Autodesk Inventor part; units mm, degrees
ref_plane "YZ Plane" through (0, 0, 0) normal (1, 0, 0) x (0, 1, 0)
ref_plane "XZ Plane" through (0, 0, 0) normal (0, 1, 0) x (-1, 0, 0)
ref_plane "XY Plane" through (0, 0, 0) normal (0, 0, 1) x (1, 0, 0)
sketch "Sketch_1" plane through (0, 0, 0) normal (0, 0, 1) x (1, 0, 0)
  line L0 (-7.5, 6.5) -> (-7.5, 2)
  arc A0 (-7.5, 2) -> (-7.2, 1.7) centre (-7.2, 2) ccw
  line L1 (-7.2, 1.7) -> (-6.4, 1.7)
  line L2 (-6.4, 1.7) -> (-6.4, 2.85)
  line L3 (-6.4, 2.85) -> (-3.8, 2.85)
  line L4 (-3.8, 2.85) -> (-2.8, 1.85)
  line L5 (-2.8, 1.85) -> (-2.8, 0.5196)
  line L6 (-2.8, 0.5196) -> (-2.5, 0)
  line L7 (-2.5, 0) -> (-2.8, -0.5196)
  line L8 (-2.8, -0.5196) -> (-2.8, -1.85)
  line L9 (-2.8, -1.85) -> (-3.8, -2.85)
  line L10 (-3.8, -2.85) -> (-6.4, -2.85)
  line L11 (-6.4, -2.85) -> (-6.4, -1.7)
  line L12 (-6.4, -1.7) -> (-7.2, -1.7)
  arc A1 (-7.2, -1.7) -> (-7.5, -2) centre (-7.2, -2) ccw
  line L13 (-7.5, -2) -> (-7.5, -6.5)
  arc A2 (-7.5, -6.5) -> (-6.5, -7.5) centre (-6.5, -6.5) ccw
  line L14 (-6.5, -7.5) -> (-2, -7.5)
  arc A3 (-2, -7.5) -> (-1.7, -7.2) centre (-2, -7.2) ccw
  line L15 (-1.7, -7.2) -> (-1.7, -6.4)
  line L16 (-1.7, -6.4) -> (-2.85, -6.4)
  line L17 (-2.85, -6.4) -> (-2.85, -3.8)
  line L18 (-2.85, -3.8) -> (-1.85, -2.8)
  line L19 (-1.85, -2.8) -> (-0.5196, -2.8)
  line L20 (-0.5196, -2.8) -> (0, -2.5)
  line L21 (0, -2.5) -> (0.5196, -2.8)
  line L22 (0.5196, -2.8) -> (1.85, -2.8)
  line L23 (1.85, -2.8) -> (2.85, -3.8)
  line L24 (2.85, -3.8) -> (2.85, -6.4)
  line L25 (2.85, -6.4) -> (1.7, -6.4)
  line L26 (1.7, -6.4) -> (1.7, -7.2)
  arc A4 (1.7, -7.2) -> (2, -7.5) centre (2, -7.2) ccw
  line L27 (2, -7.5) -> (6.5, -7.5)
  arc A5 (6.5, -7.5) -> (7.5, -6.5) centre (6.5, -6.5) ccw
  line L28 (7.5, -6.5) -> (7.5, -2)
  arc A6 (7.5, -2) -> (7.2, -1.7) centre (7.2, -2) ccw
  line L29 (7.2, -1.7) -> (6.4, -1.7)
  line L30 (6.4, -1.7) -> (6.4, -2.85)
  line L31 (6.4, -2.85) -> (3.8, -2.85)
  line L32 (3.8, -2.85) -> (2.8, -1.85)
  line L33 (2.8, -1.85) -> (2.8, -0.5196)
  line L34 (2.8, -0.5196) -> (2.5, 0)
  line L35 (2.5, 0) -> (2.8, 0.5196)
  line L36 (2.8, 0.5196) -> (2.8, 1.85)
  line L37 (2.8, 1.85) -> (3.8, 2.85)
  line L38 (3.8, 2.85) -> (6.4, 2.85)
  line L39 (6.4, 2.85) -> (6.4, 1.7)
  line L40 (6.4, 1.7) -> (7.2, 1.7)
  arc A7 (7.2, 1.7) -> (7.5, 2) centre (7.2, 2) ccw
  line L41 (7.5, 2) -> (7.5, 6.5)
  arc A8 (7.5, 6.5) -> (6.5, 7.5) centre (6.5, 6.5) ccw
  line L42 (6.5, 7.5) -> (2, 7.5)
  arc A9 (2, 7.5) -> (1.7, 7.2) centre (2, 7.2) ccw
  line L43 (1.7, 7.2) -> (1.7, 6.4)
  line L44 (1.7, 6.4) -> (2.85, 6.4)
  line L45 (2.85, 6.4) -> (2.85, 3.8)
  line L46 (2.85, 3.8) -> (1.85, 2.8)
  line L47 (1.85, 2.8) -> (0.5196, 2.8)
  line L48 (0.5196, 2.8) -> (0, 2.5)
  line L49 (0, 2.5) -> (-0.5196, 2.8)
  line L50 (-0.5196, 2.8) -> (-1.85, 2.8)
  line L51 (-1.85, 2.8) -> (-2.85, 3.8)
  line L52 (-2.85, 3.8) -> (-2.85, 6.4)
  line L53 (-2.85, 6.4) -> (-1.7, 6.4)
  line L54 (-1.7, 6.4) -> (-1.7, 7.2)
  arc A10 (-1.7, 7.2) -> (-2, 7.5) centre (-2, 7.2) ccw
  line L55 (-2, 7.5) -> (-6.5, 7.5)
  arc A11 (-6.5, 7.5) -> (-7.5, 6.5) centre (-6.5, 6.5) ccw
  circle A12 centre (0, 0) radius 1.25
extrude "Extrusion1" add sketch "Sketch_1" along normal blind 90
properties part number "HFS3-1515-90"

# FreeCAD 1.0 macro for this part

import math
import FreeCAD as App
import Part
import Sketcher

V = App.Vector
Q = App.Units.Quantity

doc = App.newDocument("Part")
body = doc.addObject("PartDesign::Body", "Body")

# Sketch on XY plane
sketch1 = body.newObject("Sketcher::SketchObject", "Sketch")
sketch1.AttachmentSupport = (doc.getObject("XY_Plane"), [""])
sketch1.MapMode = "FlatFace"
sketch1.addGeometry([
    Part.ArcOfCircle(Part.Circle(V(-6.5, 6.5, 0), V(0, 0, 1), 1), math.radians(90), math.radians(180)),  # 0
    Part.LineSegment(V(-7.5, 6.5, 0), V(-7.5, 2, 0)),  # 1
    Part.ArcOfCircle(Part.Circle(V(-7.2, 2, 0), V(0, 0, 1), 0.3), math.radians(180), math.radians(270)),  # 2
    Part.LineSegment(V(-7.2, 1.7, 0), V(-6.4, 1.7, 0)),  # 3
    Part.LineSegment(V(-6.4, 1.7, 0), V(-6.4, 2.85, 0)),  # 4
    Part.LineSegment(V(-6.4, 2.85, 0), V(-3.8, 2.85, 0)),  # 5
    Part.LineSegment(V(-3.8, 2.85, 0), V(-2.8, 1.85, 0)),  # 6
    Part.LineSegment(V(-2.8, 1.85, 0), V(-2.8, 0.52, 0)),  # 7
    Part.LineSegment(V(-2.8, 0.52, 0), V(-2.5, 0, 0)),  # 8
    Part.LineSegment(V(-2.5, 0, 0), V(-2.8, -0.52, 0)),  # 9
    Part.LineSegment(V(-2.8, -0.52, 0), V(-2.8, -1.85, 0)),  # 10
    Part.LineSegment(V(-2.8, -1.85, 0), V(-3.8, -2.85, 0)),  # 11
    Part.LineSegment(V(-3.8, -2.85, 0), V(-6.4, -2.85, 0)),  # 12
    Part.LineSegment(V(-6.4, -2.85, 0), V(-6.4, -1.7, 0)),  # 13
    Part.LineSegment(V(-6.4, -1.7, 0), V(-7.2, -1.7, 0)),  # 14
    Part.ArcOfCircle(Part.Circle(V(-7.2, -2, 0), V(0, 0, 1), 0.3), math.radians(90), math.radians(180)),  # 15
    Part.LineSegment(V(-7.5, -2, 0), V(-7.5, -6.5, 0)),  # 16
    Part.ArcOfCircle(Part.Circle(V(-6.5, -6.5, 0), V(0, 0, 1), 1), math.radians(180), math.radians(270)),  # 17
    Part.LineSegment(V(-6.5, -7.5, 0), V(-2, -7.5, 0)),  # 18
    Part.ArcOfCircle(Part.Circle(V(-2, -7.2, 0), V(0, 0, 1), 0.3), math.radians(-90), math.radians(0)),  # 19
    Part.LineSegment(V(-1.7, -7.2, 0), V(-1.7, -6.4, 0)),  # 20
    Part.LineSegment(V(-1.7, -6.4, 0), V(-2.85, -6.4, 0)),  # 21
    Part.LineSegment(V(-2.85, -6.4, 0), V(-2.85, -3.8, 0)),  # 22
    Part.LineSegment(V(-2.85, -3.8, 0), V(-1.85, -2.8, 0)),  # 23
    Part.LineSegment(V(-1.85, -2.8, 0), V(-0.52, -2.8, 0)),  # 24
    Part.LineSegment(V(-0.52, -2.8, 0), V(0, -2.5, 0)),  # 25
    Part.LineSegment(V(0, -2.5, 0), V(0.52, -2.8, 0)),  # 26
    Part.LineSegment(V(0.52, -2.8, 0), V(1.85, -2.8, 0)),  # 27
    Part.LineSegment(V(1.85, -2.8, 0), V(2.85, -3.8, 0)),  # 28
    Part.LineSegment(V(2.85, -3.8, 0), V(2.85, -6.4, 0)),  # 29
    Part.LineSegment(V(2.85, -6.4, 0), V(1.7, -6.4, 0)),  # 30
    Part.LineSegment(V(1.7, -6.4, 0), V(1.7, -7.2, 0)),  # 31
    Part.ArcOfCircle(Part.Circle(V(2, -7.2, 0), V(0, 0, 1), 0.3), math.radians(180), math.radians(270)),  # 32
    Part.LineSegment(V(2, -7.5, 0), V(6.5, -7.5, 0)),  # 33
    Part.ArcOfCircle(Part.Circle(V(6.5, -6.5, 0), V(0, 0, 1), 1), math.radians(-90), math.radians(0)),  # 34
    Part.LineSegment(V(7.5, -6.5, 0), V(7.5, -2, 0)),  # 35
    Part.ArcOfCircle(Part.Circle(V(7.2, -2, 0), V(0, 0, 1), 0.3), math.radians(0), math.radians(90)),  # 36
    Part.LineSegment(V(7.2, -1.7, 0), V(6.4, -1.7, 0)),  # 37
    Part.LineSegment(V(6.4, -1.7, 0), V(6.4, -2.85, 0)),  # 38
    Part.LineSegment(V(6.4, -2.85, 0), V(3.8, -2.85, 0)),  # 39
    Part.LineSegment(V(3.8, -2.85, 0), V(2.8, -1.85, 0)),  # 40
    Part.LineSegment(V(2.8, -1.85, 0), V(2.8, -0.52, 0)),  # 41
    Part.LineSegment(V(2.8, -0.52, 0), V(2.5, 0, 0)),  # 42
    Part.LineSegment(V(2.5, 0, 0), V(2.8, 0.52, 0)),  # 43
    Part.LineSegment(V(2.8, 0.52, 0), V(2.8, 1.85, 0)),  # 44
    Part.LineSegment(V(2.8, 1.85, 0), V(3.8, 2.85, 0)),  # 45
    Part.LineSegment(V(3.8, 2.85, 0), V(6.4, 2.85, 0)),  # 46
    Part.LineSegment(V(6.4, 2.85, 0), V(6.4, 1.7, 0)),  # 47
    Part.LineSegment(V(6.4, 1.7, 0), V(7.2, 1.7, 0)),  # 48
    Part.ArcOfCircle(Part.Circle(V(7.2, 2, 0), V(0, 0, 1), 0.3), math.radians(-90), math.radians(0)),  # 49
    Part.LineSegment(V(7.5, 2, 0), V(7.5, 6.5, 0)),  # 50
    Part.ArcOfCircle(Part.Circle(V(6.5, 6.5, 0), V(0, 0, 1), 1), math.radians(0), math.radians(90)),  # 51
    Part.LineSegment(V(6.5, 7.5, 0), V(2, 7.5, 0)),  # 52
    Part.ArcOfCircle(Part.Circle(V(2, 7.2, 0), V(0, 0, 1), 0.3), math.radians(90), math.radians(180)),  # 53
    Part.LineSegment(V(1.7, 7.2, 0), V(1.7, 6.4, 0)),  # 54
    Part.LineSegment(V(1.7, 6.4, 0), V(2.85, 6.4, 0)),  # 55
    Part.LineSegment(V(2.85, 6.4, 0), V(2.85, 3.8, 0)),  # 56
    Part.LineSegment(V(2.85, 3.8, 0), V(1.85, 2.8, 0)),  # 57
    Part.LineSegment(V(1.85, 2.8, 0), V(0.52, 2.8, 0)),  # 58
    Part.LineSegment(V(0.52, 2.8, 0), V(0, 2.5, 0)),  # 59
    Part.LineSegment(V(0, 2.5, 0), V(-0.52, 2.8, 0)),  # 60
    Part.LineSegment(V(-0.52, 2.8, 0), V(-1.85, 2.8, 0)),  # 61
    Part.LineSegment(V(-1.85, 2.8, 0), V(-2.85, 3.8, 0)),  # 62
    Part.LineSegment(V(-2.85, 3.8, 0), V(-2.85, 6.4, 0)),  # 63
    Part.LineSegment(V(-2.85, 6.4, 0), V(-1.7, 6.4, 0)),  # 64
    Part.LineSegment(V(-1.7, 6.4, 0), V(-1.7, 7.2, 0)),  # 65
    Part.ArcOfCircle(Part.Circle(V(-2, 7.2, 0), V(0, 0, 1), 0.3), math.radians(0), math.radians(90)),  # 66
    Part.LineSegment(V(-2, 7.5, 0), V(-6.5, 7.5, 0)),  # 67
    Part.Circle(V(0, 0, 0), V(0, 0, 1), 1.25),  # 68
], False)
sketch1.addConstraint([
    Sketcher.Constraint("Tangent", 0, 2, 1, 1),
    Sketcher.Constraint("Tangent", 1, 2, 2, 1),
    Sketcher.Constraint("Tangent", 2, 2, 3, 1),
    Sketcher.Constraint("Coincident", 3, 2, 4, 1),
    Sketcher.Constraint("Coincident", 4, 2, 5, 1),
    Sketcher.Constraint("Coincident", 5, 2, 6, 1),
    Sketcher.Constraint("Coincident", 6, 2, 7, 1),
    Sketcher.Constraint("Coincident", 7, 2, 8, 1),
    Sketcher.Constraint("Coincident", 8, 2, 9, 1),
    Sketcher.Constraint("Coincident", 9, 2, 10, 1),
    Sketcher.Constraint("Coincident", 10, 2, 11, 1),
    Sketcher.Constraint("Coincident", 11, 2, 12, 1),
    Sketcher.Constraint("Coincident", 12, 2, 13, 1),
    Sketcher.Constraint("Coincident", 13, 2, 14, 1),
    Sketcher.Constraint("Tangent", 14, 2, 15, 1),
    Sketcher.Constraint("Tangent", 15, 2, 16, 1),
    Sketcher.Constraint("Tangent", 16, 2, 17, 1),
    Sketcher.Constraint("Tangent", 17, 2, 18, 1),
    Sketcher.Constraint("Tangent", 18, 2, 19, 1),
    Sketcher.Constraint("Tangent", 19, 2, 20, 1),
    Sketcher.Constraint("Coincident", 20, 2, 21, 1),
    Sketcher.Constraint("Coincident", 21, 2, 22, 1),
    Sketcher.Constraint("Coincident", 22, 2, 23, 1),
    Sketcher.Constraint("Coincident", 23, 2, 24, 1),
    Sketcher.Constraint("Coincident", 24, 2, 25, 1),
    Sketcher.Constraint("Coincident", 25, 2, 26, 1),
    Sketcher.Constraint("Coincident", 26, 2, 27, 1),
    Sketcher.Constraint("Coincident", 27, 2, 28, 1),
    Sketcher.Constraint("Coincident", 28, 2, 29, 1),
    Sketcher.Constraint("Coincident", 29, 2, 30, 1),
    Sketcher.Constraint("Coincident", 30, 2, 31, 1),
    Sketcher.Constraint("Tangent", 31, 2, 32, 1),
    Sketcher.Constraint("Tangent", 32, 2, 33, 1),
    Sketcher.Constraint("Tangent", 33, 2, 34, 1),
    Sketcher.Constraint("Tangent", 34, 2, 35, 1),
    Sketcher.Constraint("Tangent", 35, 2, 36, 1),
    Sketcher.Constraint("Tangent", 36, 2, 37, 1),
    Sketcher.Constraint("Coincident", 37, 2, 38, 1),
    Sketcher.Constraint("Coincident", 38, 2, 39, 1),
    Sketcher.Constraint("Coincident", 39, 2, 40, 1),
    Sketcher.Constraint("Coincident", 40, 2, 41, 1),
    Sketcher.Constraint("Coincident", 41, 2, 42, 1),
    Sketcher.Constraint("Coincident", 42, 2, 43, 1),
    Sketcher.Constraint("Coincident", 43, 2, 44, 1),
    Sketcher.Constraint("Coincident", 44, 2, 45, 1),
    Sketcher.Constraint("Coincident", 45, 2, 46, 1),
    Sketcher.Constraint("Coincident", 46, 2, 47, 1),
    Sketcher.Constraint("Coincident", 47, 2, 48, 1),
    Sketcher.Constraint("Tangent", 48, 2, 49, 1),
    Sketcher.Constraint("Tangent", 49, 2, 50, 1),
    Sketcher.Constraint("Tangent", 50, 2, 51, 1),
    Sketcher.Constraint("Tangent", 51, 2, 52, 1),
    Sketcher.Constraint("Tangent", 52, 2, 53, 1),
    Sketcher.Constraint("Tangent", 53, 2, 54, 1),
    Sketcher.Constraint("Coincident", 54, 2, 55, 1),
    Sketcher.Constraint("Coincident", 55, 2, 56, 1),
    Sketcher.Constraint("Coincident", 56, 2, 57, 1),
    Sketcher.Constraint("Coincident", 57, 2, 58, 1),
    Sketcher.Constraint("Coincident", 58, 2, 59, 1),
    Sketcher.Constraint("Coincident", 59, 2, 60, 1),
    Sketcher.Constraint("Coincident", 60, 2, 61, 1),
    Sketcher.Constraint("Coincident", 61, 2, 62, 1),
    Sketcher.Constraint("Coincident", 62, 2, 63, 1),
    Sketcher.Constraint("Coincident", 63, 2, 64, 1),
    Sketcher.Constraint("Coincident", 64, 2, 65, 1),
    Sketcher.Constraint("Tangent", 65, 2, 66, 1),
    Sketcher.Constraint("Tangent", 66, 2, 67, 1),
    Sketcher.Constraint("Tangent", 67, 2, 0, 1),
    Sketcher.Constraint("Vertical", 1),
    Sketcher.Constraint("Horizontal", 3),
    Sketcher.Constraint("Vertical", 4),
    Sketcher.Constraint("Horizontal", 5),
    Sketcher.Constraint("Vertical", 7),
    Sketcher.Constraint("Vertical", 10),
    Sketcher.Constraint("Horizontal", 12),
    Sketcher.Constraint("Vertical", 13),
    Sketcher.Constraint("Horizontal", 14),
    Sketcher.Constraint("Vertical", 16),
    Sketcher.Constraint("Horizontal", 18),
    Sketcher.Constraint("Vertical", 20),
    Sketcher.Constraint("Horizontal", 21),
    Sketcher.Constraint("Vertical", 22),
    Sketcher.Constraint("Horizontal", 24),
    Sketcher.Constraint("Horizontal", 27),
    Sketcher.Constraint("Vertical", 29),
    Sketcher.Constraint("Horizontal", 30),
    Sketcher.Constraint("Vertical", 31),
    Sketcher.Constraint("Horizontal", 33),
    Sketcher.Constraint("Vertical", 35),
    Sketcher.Constraint("Horizontal", 37),
    Sketcher.Constraint("Vertical", 38),
    Sketcher.Constraint("Horizontal", 39),
    Sketcher.Constraint("Vertical", 41),
    Sketcher.Constraint("Vertical", 44),
    Sketcher.Constraint("Horizontal", 46),
    Sketcher.Constraint("Vertical", 47),
    Sketcher.Constraint("Horizontal", 48),
    Sketcher.Constraint("Vertical", 50),
    Sketcher.Constraint("Horizontal", 52),
    Sketcher.Constraint("Vertical", 54),
    Sketcher.Constraint("Horizontal", 55),
    Sketcher.Constraint("Vertical", 56),
    Sketcher.Constraint("Horizontal", 58),
    Sketcher.Constraint("Horizontal", 61),
    Sketcher.Constraint("Vertical", 63),
    Sketcher.Constraint("Horizontal", 64),
    Sketcher.Constraint("Vertical", 65),
    Sketcher.Constraint("Horizontal", 67),
    Sketcher.Constraint("Coincident", 68, 3, -1, 1),
    Sketcher.Constraint("Equal", 2, 15),
    Sketcher.Constraint("Equal", 0, 17),
    Sketcher.Constraint("Equal", 15, 19),
    Sketcher.Constraint("Equal", 19, 32),
    Sketcher.Constraint("Equal", 17, 34),
    Sketcher.Constraint("Equal", 32, 36),
    Sketcher.Constraint("Equal", 36, 49),
    Sketcher.Constraint("Equal", 34, 51),
    Sketcher.Constraint("Equal", 49, 53),
    Sketcher.Constraint("Equal", 53, 66),
    Sketcher.Constraint("Symmetric", 0, 3, 34, 3, -1, 1),
    Sketcher.Constraint("Symmetric", 15, 3, 49, 3, -1, 1),
    Sketcher.Constraint("Symmetric", 19, 3, 53, 3, -1, 1),
    Sketcher.Constraint("Symmetric", 3, 2, 37, 2, -1, 1),
    Sketcher.Constraint("Symmetric", 5, 2, 39, 2, -1, 1),
    Sketcher.Constraint("Symmetric", 6, 2, 40, 2, -1, 1),
    Sketcher.Constraint("Symmetric", 8, 2, 42, 2, -1, 1),
    Sketcher.Constraint("Symmetric", 9, 2, 43, 2, -1, 1),
    Sketcher.Constraint("Symmetric", 11, 2, 45, 2, -1, 1),
    Sketcher.Constraint("Symmetric", 21, 2, 55, 2, -1, 1),
    Sketcher.Constraint("Symmetric", 23, 2, 57, 2, -1, 1),
    Sketcher.Constraint("Symmetric", 25, 2, 59, 2, -1, 1),
    Sketcher.Constraint("Symmetric", 26, 2, 60, 2, -1, 1),
    Sketcher.Constraint("Symmetric", 28, 2, 62, 2, -1, 1),
    Sketcher.Constraint("Symmetric", 30, 2, 64, 2, -1, 1),
    Sketcher.Constraint("Symmetric", 19, 3, 32, 3, -2),
    Sketcher.Constraint("Symmetric", 15, 3, 36, 3, -2),
    Sketcher.Constraint("Symmetric", 24, 2, 26, 2, -2),
    Sketcher.Constraint("Symmetric", 22, 2, 28, 2, -2),
    Sketcher.Constraint("Symmetric", 12, 2, 38, 2, -2),
    Sketcher.Constraint("Symmetric", 10, 2, 40, 2, -2),
    Sketcher.Constraint("PointOnObject", 8, 2, -1),
    Sketcher.Constraint("PointOnObject", 25, 2, -2),
    Sketcher.Constraint("Perpendicular", 6, 11),
    Sketcher.Constraint("Parallel", 11, 23),
    Sketcher.Constraint("Perpendicular", 8, 25),
    Sketcher.Constraint("Perpendicular", 9, 26),
    Sketcher.Constraint("Perpendicular", 23, 28),
    Sketcher.Constraint("Perpendicular", 25, 42),
    Sketcher.Constraint("Perpendicular", 40, 45),
    Sketcher.Constraint("Parallel", 45, 57),
    Sketcher.Constraint("Perpendicular", 42, 59),
    Sketcher.Constraint("Perpendicular", 57, 62),
    Sketcher.Constraint("Horizontal", 21, 2, 29, 2),
    Sketcher.Constraint("Vertical", 5, 2, 11, 2),
    Sketcher.Constraint("Vertical", 38, 2, 46, 2),
    Sketcher.Constraint("Equal", 67, 1),
    Sketcher.Constraint("Equal", 64, 4),
    Sketcher.Constraint("Equal", 61, 7),
    Sketcher.Constraint("Equal", 48, 20),
    Sketcher.Constraint("Equal", 46, 22),
    Sketcher.Constraint("Equal", 11, 23),
    Sketcher.Constraint("Equal", 9, 25),
    Sketcher.Constraint("Radius", 0, 1.0),
    Sketcher.Constraint("Diameter", 68, 2.5),
    Sketcher.Constraint("Radius", 2, 0.3),
    Sketcher.Constraint("Angle", 8, Q("-59.9993 deg")),
    Sketcher.Constraint("DistanceX", 3, 1, 3, 2, 0.8),
    Sketcher.Constraint("DistanceX", 5, 1, 5, 2, 2.6),
    Sketcher.Constraint("DistanceX", 18, 1, 18, 2, 4.5),
    Sketcher.Constraint("DistanceY", -1, 1, 2, 3, 2.0),
    Sketcher.Constraint("Distance", 8, 0.6),
    Sketcher.Constraint("DistanceX", 21, 2, 21, 1, 1.15),
    Sketcher.Constraint("DistanceX", 6, 2, -1, 1, 2.8),
])
pad1 = body.newObject("PartDesign::Pad", "Pad")
pad1.Profile = sketch1
pad1.Length = 90

doc.recompute()
